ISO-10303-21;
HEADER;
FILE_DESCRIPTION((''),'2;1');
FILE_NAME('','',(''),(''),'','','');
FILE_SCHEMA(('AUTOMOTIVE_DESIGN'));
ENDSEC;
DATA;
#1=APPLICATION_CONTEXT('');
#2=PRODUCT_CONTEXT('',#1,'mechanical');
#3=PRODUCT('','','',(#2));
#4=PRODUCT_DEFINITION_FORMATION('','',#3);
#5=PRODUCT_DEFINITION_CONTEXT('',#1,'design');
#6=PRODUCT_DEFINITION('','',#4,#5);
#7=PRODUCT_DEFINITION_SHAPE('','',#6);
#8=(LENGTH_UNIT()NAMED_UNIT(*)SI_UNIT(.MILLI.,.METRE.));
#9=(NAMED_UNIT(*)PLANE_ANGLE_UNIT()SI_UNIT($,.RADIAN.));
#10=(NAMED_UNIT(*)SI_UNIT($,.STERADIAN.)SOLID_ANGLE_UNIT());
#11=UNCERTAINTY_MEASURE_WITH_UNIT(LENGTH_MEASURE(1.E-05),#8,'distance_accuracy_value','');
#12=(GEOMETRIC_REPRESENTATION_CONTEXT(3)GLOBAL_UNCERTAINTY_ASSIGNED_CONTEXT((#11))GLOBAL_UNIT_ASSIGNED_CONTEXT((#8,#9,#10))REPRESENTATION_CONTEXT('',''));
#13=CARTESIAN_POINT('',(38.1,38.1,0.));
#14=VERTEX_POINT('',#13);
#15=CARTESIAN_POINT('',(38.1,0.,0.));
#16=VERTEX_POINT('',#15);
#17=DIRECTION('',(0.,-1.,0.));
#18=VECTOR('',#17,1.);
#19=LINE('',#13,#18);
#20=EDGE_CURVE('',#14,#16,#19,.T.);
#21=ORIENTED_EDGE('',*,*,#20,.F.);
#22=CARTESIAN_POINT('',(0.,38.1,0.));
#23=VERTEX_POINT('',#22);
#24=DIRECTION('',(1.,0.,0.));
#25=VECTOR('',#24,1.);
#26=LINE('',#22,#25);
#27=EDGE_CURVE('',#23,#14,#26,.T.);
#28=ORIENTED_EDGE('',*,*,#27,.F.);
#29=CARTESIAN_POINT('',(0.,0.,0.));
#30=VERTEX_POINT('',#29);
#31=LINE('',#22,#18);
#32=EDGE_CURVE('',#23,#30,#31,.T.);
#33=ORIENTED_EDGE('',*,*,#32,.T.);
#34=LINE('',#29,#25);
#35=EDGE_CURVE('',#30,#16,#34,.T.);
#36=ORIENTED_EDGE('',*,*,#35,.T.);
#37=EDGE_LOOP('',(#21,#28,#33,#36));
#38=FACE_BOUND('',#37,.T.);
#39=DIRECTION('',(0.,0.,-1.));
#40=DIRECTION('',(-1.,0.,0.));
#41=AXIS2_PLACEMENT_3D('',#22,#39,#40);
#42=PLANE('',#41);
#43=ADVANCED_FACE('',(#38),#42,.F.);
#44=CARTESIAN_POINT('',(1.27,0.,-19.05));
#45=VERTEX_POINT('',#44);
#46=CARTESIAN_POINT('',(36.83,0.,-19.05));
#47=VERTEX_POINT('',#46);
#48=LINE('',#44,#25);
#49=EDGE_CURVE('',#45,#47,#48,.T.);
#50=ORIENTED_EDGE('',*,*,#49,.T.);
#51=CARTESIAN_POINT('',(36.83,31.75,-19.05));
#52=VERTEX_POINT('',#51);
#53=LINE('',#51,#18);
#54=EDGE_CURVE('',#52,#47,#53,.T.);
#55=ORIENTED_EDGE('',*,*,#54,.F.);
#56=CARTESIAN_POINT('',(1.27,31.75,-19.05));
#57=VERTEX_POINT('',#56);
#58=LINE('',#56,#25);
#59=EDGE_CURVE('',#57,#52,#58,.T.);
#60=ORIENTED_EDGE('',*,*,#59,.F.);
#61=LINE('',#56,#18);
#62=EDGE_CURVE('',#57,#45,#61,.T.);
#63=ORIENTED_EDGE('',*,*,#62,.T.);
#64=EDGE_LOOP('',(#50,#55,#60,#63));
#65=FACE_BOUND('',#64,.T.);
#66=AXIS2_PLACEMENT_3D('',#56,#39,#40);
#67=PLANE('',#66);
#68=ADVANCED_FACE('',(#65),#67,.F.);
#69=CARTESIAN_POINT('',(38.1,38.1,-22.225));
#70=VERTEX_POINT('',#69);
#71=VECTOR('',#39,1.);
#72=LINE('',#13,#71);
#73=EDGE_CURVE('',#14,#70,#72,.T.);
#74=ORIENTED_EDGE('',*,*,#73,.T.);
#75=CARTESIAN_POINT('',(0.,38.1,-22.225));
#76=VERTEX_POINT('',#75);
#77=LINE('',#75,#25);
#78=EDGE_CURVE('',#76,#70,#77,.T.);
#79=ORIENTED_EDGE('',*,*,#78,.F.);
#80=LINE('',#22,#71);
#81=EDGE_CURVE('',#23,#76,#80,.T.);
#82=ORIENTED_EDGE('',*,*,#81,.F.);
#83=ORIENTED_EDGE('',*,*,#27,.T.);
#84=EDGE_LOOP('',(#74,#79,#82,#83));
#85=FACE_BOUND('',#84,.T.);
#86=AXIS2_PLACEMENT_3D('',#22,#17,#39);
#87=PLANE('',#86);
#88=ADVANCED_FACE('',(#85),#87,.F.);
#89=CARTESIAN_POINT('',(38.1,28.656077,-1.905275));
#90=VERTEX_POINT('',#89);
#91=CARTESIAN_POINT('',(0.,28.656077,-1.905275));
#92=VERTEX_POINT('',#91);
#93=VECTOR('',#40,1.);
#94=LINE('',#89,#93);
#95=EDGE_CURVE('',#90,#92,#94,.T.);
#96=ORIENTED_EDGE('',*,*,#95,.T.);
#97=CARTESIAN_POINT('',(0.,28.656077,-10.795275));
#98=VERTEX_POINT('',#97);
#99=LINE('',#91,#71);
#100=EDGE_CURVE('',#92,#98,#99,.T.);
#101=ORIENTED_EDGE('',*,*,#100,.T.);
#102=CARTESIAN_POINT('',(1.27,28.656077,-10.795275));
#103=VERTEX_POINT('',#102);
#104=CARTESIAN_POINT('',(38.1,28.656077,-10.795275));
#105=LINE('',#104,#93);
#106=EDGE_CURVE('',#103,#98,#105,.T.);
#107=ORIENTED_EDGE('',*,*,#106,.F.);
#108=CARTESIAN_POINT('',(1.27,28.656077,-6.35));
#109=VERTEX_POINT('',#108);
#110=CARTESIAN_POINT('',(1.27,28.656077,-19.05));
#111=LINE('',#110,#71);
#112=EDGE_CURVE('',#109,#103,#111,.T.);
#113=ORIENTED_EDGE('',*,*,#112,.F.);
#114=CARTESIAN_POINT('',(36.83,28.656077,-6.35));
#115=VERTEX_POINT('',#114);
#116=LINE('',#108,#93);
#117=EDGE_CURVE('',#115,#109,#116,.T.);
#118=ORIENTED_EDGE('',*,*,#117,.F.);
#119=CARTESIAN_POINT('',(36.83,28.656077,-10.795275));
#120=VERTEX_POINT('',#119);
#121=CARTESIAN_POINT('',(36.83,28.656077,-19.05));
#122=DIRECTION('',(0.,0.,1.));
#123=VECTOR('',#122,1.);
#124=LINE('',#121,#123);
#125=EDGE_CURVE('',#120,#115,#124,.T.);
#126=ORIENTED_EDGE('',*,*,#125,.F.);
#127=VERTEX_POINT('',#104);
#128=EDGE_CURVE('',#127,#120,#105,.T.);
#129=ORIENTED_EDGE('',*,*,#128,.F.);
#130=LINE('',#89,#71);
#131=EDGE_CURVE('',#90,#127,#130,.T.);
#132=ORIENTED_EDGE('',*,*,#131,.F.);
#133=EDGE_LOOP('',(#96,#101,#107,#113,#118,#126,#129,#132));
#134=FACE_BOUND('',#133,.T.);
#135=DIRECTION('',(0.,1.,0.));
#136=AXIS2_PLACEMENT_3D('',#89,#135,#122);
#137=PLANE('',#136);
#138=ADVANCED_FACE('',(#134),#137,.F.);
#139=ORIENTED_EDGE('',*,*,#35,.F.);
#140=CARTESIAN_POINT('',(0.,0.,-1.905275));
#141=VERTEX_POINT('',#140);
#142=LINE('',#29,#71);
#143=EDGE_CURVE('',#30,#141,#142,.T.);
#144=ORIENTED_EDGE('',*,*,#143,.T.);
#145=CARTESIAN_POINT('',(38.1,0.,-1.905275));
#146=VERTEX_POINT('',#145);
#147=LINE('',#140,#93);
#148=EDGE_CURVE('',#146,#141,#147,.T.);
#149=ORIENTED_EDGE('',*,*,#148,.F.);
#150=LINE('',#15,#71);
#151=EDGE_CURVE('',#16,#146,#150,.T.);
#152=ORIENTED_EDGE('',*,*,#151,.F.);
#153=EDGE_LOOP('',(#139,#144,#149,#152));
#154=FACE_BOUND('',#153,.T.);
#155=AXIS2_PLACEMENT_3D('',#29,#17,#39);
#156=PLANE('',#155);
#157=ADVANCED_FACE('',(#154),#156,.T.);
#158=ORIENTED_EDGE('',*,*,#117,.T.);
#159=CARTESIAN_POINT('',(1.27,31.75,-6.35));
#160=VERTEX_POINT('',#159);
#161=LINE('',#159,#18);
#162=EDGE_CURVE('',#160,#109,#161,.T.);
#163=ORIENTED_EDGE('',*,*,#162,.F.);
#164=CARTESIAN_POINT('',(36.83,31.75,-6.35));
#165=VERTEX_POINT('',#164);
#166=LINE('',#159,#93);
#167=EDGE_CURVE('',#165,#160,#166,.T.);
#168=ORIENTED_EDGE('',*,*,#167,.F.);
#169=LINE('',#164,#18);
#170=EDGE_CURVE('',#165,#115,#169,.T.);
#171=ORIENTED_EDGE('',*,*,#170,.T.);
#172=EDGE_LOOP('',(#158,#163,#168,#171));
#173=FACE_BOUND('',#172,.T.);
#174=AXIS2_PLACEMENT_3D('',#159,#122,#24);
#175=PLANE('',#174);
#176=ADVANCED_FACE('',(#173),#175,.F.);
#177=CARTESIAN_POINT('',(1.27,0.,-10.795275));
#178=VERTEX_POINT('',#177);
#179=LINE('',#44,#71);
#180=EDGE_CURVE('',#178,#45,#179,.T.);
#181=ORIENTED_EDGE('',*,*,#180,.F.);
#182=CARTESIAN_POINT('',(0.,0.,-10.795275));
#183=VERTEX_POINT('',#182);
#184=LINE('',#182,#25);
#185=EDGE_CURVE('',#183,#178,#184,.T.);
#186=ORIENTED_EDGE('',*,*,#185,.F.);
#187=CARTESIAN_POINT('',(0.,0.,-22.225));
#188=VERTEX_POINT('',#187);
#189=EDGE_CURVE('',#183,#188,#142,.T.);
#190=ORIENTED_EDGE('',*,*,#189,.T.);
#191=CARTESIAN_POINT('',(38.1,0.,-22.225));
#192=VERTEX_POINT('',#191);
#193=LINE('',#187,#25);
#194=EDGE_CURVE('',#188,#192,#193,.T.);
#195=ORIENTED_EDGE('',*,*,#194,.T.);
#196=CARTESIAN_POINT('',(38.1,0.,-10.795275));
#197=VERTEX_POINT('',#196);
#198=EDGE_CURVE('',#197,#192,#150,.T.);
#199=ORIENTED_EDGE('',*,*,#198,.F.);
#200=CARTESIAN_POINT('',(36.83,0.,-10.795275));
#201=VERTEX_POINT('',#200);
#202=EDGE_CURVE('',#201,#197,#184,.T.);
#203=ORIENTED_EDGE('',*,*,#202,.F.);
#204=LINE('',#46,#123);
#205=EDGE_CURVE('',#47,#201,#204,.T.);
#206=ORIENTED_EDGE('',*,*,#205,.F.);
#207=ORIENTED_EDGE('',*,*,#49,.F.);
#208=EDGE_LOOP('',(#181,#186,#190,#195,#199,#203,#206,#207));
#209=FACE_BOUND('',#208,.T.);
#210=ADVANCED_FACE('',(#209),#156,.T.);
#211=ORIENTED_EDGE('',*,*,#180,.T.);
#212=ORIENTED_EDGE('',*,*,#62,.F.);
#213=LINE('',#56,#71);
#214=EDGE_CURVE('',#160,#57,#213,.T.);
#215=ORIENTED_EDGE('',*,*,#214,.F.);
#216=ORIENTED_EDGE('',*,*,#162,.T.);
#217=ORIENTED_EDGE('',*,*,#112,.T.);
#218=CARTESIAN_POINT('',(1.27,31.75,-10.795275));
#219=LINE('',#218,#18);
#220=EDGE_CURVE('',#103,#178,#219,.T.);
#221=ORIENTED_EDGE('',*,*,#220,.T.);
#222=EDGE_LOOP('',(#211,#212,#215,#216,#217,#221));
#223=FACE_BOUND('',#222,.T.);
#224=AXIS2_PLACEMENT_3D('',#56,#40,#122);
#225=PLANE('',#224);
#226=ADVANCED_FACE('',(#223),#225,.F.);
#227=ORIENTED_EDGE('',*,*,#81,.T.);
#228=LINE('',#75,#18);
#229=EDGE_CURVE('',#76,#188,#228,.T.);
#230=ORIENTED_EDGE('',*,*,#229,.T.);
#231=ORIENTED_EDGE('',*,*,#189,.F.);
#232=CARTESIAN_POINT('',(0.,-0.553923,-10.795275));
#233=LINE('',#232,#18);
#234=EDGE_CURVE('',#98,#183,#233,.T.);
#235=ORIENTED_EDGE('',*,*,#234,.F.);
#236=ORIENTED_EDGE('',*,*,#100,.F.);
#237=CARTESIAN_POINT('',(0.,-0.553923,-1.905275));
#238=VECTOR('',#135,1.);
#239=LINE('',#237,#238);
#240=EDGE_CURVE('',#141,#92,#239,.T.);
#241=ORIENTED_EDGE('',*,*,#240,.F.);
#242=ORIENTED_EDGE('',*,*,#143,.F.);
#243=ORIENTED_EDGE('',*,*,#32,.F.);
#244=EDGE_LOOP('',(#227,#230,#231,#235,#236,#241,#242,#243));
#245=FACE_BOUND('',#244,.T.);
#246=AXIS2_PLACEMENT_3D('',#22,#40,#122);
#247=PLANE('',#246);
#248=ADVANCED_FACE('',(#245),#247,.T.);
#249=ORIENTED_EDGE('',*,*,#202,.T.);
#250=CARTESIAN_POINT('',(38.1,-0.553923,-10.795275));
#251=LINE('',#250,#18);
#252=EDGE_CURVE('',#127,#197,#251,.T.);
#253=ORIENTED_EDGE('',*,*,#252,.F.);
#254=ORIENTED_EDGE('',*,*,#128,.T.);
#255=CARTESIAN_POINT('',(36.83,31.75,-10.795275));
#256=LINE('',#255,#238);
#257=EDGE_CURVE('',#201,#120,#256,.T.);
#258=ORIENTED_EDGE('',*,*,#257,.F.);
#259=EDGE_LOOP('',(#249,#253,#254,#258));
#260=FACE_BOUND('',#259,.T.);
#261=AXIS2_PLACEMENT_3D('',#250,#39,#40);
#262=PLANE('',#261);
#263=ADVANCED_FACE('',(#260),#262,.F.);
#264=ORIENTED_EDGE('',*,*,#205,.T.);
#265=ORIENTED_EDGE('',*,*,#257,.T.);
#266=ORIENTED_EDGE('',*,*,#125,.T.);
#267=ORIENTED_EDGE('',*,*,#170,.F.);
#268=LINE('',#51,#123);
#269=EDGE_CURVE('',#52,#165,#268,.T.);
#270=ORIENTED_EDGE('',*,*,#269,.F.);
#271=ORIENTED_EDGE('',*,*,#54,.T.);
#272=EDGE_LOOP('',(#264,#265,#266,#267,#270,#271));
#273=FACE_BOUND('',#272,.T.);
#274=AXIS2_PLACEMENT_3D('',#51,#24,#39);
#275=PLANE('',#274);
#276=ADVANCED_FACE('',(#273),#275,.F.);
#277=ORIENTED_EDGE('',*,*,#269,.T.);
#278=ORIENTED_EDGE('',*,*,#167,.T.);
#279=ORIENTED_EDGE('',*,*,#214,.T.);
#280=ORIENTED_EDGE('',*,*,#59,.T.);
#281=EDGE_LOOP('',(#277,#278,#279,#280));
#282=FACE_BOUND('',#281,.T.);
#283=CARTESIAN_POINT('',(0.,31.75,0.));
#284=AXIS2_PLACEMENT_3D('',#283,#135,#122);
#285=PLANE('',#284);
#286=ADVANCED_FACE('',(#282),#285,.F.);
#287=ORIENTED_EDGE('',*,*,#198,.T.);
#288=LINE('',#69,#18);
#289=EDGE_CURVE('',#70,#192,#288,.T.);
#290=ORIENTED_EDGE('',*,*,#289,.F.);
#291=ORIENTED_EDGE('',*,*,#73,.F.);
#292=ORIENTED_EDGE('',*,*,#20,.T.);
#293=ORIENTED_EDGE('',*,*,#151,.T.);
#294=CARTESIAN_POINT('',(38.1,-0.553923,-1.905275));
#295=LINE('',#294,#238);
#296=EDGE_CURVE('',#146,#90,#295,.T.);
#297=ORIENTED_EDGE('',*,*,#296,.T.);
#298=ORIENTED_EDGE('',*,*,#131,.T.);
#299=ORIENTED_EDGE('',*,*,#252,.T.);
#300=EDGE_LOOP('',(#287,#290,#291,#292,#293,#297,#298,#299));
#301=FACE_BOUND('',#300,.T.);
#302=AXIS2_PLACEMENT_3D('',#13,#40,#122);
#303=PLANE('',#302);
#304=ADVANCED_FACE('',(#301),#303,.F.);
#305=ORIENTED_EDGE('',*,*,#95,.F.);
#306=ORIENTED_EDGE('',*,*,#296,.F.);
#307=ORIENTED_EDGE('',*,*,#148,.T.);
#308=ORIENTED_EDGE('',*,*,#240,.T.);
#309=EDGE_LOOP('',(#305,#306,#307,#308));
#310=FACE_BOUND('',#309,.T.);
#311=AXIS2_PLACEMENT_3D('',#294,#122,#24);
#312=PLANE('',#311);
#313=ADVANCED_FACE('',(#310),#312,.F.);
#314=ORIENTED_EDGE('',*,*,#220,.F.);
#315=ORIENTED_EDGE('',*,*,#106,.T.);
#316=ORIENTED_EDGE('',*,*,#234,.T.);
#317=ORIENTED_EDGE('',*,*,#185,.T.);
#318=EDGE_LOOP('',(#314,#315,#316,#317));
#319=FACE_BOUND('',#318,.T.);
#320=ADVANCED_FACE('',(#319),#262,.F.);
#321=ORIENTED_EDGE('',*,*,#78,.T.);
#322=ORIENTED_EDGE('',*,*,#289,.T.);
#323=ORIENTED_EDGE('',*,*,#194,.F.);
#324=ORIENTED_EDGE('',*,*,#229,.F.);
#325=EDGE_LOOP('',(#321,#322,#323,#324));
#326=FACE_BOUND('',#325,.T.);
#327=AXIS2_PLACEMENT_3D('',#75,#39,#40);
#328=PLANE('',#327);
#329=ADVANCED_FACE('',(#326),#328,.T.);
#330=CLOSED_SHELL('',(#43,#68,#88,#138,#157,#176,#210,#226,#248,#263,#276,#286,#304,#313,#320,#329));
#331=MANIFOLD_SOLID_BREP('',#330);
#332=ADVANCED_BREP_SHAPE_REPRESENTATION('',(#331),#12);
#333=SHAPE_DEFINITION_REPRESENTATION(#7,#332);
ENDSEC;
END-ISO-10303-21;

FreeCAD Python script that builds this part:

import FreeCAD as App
import Part
import Sketcher
Q = App.Units.Quantity


def add_polygon(sketch, points):
    """Adds a closed chain of lines whose ends are joined by coincident constraints."""
    first, n = sketch.GeometryCount, len(points)
    for a, b in zip(points, points[1:] + points[:1]):
        sketch.addGeometry(Part.LineSegment(App.Vector(*a, 0), App.Vector(*b, 0)), False)
    for i in range(n):
        sketch.addConstraint(Sketcher.Constraint("Coincident", first + i, 2, first + (i + 1) % n, 1))

doc = App.newDocument("Part")
body = doc.addObject("PartDesign::Body", "Body")

# Sketch on XZ plane
sketch1 = body.newObject("Sketcher::SketchObject", "Sketch")
sketch1.AttachmentSupport = (doc.getObject("XZ_Plane"), [""])
sketch1.MapMode = "FlatFace"
add_polygon(sketch1, [(0, -22), (0, 0), (38, 0), (38, -22)])  # lines 0-3
sketch1.addConstraint([
    Sketcher.Constraint("Vertical", 0),
    Sketcher.Constraint("Horizontal", 1),
    Sketcher.Constraint("Vertical", 2),
    Sketcher.Constraint("Horizontal", 3),
    Sketcher.Constraint("Coincident", 0, 2, -1, 1),
    Sketcher.Constraint("DistanceX", 1, 1, 1, 2, Q("1.5 in")),
    Sketcher.Constraint("DistanceY", 0, 1, 0, 2, Q("0.875 in")),
])
pad1 = body.newObject("PartDesign::Pad", "Pad")
pad1.Profile = sketch1
pad1.Length = Q("1.5 in")
pad1.Reversed = True

# Sketch on XZ plane
sketch2 = body.newObject("Sketcher::SketchObject", "Sketch001")
sketch2.AttachmentSupport = (doc.getObject("XZ_Plane"), [""])
sketch2.MapMode = "FlatFace"
add_polygon(sketch2, [(1, -6), (1, -19), (37, -19), (37, -6)])  # lines 0-3
sketch2.addConstraint([
    Sketcher.Constraint("Vertical", 0),
    Sketcher.Constraint("Horizontal", 1),
    Sketcher.Constraint("Vertical", 2),
    Sketcher.Constraint("Horizontal", 3),
    Sketcher.Constraint("DistanceX", 1, 1, 1, 2, Q("1.4 in")),
    Sketcher.Constraint("DistanceY", 0, 2, 0, 1, Q("0.5 in")),
    Sketcher.Constraint("DistanceX", -1, 1, 0, 2, Q("0.05 in")),
    Sketcher.Constraint("DistanceY", 0, 2, -1, 1, Q("0.75 in")),
])
pocket1 = body.newObject("PartDesign::Pocket", "Pocket")
pocket1.Profile = sketch2
pocket1.Length = Q("1.25 in")

# Sketch on YZ plane
sketch3 = body.newObject("Sketcher::SketchObject", "Sketch002")
sketch3.AttachmentSupport = (doc.getObject("YZ_Plane"), [""])
sketch3.MapMode = "FlatFace"
add_polygon(sketch3, [(29, -11), (-1, -11), (-1, -2), (29, -2)])  # lines 0-3
sketch3.addConstraint([
    Sketcher.Constraint("Horizontal", 0),
    Sketcher.Constraint("Vertical", 1),
    Sketcher.Constraint("Horizontal", 2),
    Sketcher.Constraint("Vertical", 3),
    Sketcher.Constraint("DistanceX", 0, 2, 0, 1, Q("1.15 in")),
    Sketcher.Constraint("DistanceY", 1, 1, 1, 2, Q("0.35 in")),
    Sketcher.Constraint("DistanceX", 0, 2, -1, 1, Q("0.553923 mm")),
    Sketcher.Constraint("DistanceY", 0, 2, -1, 1, Q("10.795275 mm")),
])
pocket2 = body.newObject("PartDesign::Pocket", "Pocket001")
pocket2.Profile = sketch3
pocket2.Type = "ThroughAll"
pocket2.Reversed = True

doc.recompute()
